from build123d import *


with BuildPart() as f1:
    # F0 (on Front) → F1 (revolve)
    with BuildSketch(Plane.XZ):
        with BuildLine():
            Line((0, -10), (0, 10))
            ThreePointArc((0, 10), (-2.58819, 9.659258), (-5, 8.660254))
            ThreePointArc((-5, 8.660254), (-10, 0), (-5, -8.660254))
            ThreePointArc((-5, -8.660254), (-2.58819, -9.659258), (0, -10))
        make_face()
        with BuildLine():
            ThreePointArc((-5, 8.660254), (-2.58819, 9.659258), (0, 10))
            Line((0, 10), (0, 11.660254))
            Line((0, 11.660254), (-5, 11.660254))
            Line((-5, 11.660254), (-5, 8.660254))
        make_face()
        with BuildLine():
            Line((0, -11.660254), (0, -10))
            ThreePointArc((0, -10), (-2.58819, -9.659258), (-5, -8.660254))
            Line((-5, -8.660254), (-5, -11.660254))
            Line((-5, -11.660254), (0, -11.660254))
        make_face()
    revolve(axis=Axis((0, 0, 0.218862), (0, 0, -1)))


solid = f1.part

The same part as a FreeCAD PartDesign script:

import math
import FreeCAD as App
import Part
import Sketcher
from FreeCAD import Vector

doc = App.newDocument("Part")
body = doc.addObject("PartDesign::Body", "Body")

sketch1 = body.newObject("Sketcher::SketchObject", "Sketch")
sketch1.AttachmentSupport = (doc.getObject("XZ_Plane"), [""])
sketch1.MapMode = "FlatFace"
sketch1.addGeometry([
    Part.LineSegment(Vector(0, 11.7, 0), Vector(-5, 11.7, 0)),
    Part.LineSegment(Vector(-5, 11.7, 0), Vector(-5, 8.7, 0)),
    Part.ArcOfCircle(Part.Circle(Vector(0, 0, 0), Vector(0, 0, 1), 10), math.radians(120), math.radians(240)),
    Part.LineSegment(Vector(-5, -8.7, 0), Vector(-5, -11.7, 0)),
    Part.LineSegment(Vector(-5, -11.7, 0), Vector(0, -11.7, 0)),
    Part.LineSegment(Vector(0, -11.7, 0), Vector(0, 11.7, 0)),
], False)
sketch1.addConstraint([
    Sketcher.Constraint("Coincident", 0, 2, 1, 1),
    Sketcher.Constraint("Coincident", 1, 2, 2, 1),
    Sketcher.Constraint("Coincident", 2, 2, 3, 1),
    Sketcher.Constraint("Coincident", 3, 2, 4, 1),
    Sketcher.Constraint("Coincident", 4, 2, 5, 1),
    Sketcher.Constraint("Coincident", 5, 2, 0, 1),
    Sketcher.Constraint("Horizontal", 0),
    Sketcher.Constraint("Vertical", 1),
    Sketcher.Constraint("Vertical", 3),
    Sketcher.Constraint("Horizontal", 4),
    Sketcher.Constraint("Vertical", 5),
    Sketcher.Constraint("Coincident", 2, 3, -1, 1),
    Sketcher.Constraint("Symmetric", 4, 2, 5, 2, -1, 1),
    Sketcher.Constraint("Vertical", 1, 2, 2, 2),
    Sketcher.Constraint("Radius", 2, 10.0),
    Sketcher.Constraint("DistanceX", 0, 2, 0, 1, 5.0),
    Sketcher.Constraint("DistanceY", 1, 2, 1, 1, 3.0),
])
revolution = body.newObject("PartDesign::Revolution", "Revolution")
revolution.Profile = sketch1
revolution.ReferenceAxis = (sketch1, ["V_Axis"])
revolution.Angle = 360

doc.recompute()
